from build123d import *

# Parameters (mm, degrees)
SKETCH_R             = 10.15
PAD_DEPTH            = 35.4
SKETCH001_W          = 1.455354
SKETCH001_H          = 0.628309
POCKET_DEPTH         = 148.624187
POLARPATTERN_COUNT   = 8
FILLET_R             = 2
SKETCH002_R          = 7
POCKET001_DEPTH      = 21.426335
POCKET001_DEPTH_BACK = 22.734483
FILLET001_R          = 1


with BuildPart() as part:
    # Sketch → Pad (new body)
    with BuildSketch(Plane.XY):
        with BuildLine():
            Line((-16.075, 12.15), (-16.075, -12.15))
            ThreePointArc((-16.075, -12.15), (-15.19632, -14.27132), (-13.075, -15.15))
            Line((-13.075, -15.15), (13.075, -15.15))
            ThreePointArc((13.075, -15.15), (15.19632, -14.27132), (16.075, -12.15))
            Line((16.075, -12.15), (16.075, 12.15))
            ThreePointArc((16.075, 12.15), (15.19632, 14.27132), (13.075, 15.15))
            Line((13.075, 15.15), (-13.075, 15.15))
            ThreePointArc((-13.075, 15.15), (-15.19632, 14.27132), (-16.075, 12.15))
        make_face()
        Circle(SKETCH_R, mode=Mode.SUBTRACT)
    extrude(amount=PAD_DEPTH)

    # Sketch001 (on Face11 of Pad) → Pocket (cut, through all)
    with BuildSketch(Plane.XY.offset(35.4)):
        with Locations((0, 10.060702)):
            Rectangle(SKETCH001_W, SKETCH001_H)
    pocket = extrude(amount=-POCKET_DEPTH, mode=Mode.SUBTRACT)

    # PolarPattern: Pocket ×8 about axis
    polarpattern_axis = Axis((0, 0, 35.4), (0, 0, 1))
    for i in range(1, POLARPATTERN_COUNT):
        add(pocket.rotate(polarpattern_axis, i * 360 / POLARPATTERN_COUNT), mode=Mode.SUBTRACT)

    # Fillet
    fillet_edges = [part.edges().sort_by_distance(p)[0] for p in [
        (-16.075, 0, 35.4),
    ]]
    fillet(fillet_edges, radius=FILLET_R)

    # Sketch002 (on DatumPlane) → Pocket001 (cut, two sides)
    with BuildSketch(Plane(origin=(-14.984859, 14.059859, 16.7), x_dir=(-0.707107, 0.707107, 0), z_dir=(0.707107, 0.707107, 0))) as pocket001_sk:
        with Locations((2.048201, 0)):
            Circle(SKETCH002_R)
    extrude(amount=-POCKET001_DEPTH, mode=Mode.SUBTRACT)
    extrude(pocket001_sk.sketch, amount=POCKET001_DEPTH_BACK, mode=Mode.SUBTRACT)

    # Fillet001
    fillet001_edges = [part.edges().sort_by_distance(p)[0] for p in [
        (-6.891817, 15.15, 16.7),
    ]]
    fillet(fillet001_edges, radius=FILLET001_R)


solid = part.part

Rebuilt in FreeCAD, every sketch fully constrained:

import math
import FreeCAD as App
import Part
import Sketcher
Q = App.Units.Quantity


def edges_at(feature, points):
    """Names of the edges that pass closest to the given points."""
    edges = feature.Shape.Edges
    near = lambda p: min(range(len(edges)), key=lambda i: edges[i].distToShape(Part.Vertex(*p))[0])
    return sorted({f"Edge{near(p) + 1}" for p in points})


def add_polygon(sketch, points):
    """Adds a closed chain of lines whose ends are joined by coincident constraints."""
    first, n = sketch.GeometryCount, len(points)
    for a, b in zip(points, points[1:] + points[:1]):
        sketch.addGeometry(Part.LineSegment(App.Vector(*a, 0), App.Vector(*b, 0)), False)
    for i in range(n):
        sketch.addConstraint(Sketcher.Constraint("Coincident", first + i, 2, first + (i + 1) % n, 1))

doc = App.newDocument("Part")
params = doc.addObject("Spreadsheet::Sheet", "Params")
for row, (alias, value) in enumerate([
    ("sketch1_radius", "3.000001 mm"),
    ("sketch1_diameter", "20.3 mm"),
    ("sketch1_height", "24.3 mm"),
    ("sketch1_width", "26.15 mm"),
    ("pad1_length", "35.4 mm"),
    ("fillet_radius", "2 mm"),
    ("sketch3_diameter", "14 mm"),
    ("fillet2_radius", "1 mm"),
], start=1):
    params.set(f"A{row}", alias)
    params.set(f"B{row}", "=" + value)
    params.setAlias(f"B{row}", alias)

body = doc.addObject("PartDesign::Body", "Body")

sketch1 = body.newObject("Sketcher::SketchObject", "Sketch")
sketch1.AttachmentSupport = (doc.getObject("XY_Plane"), [""])
sketch1.MapMode = "FlatFace"
sketch1.addGeometry(Part.LineSegment(App.Vector(-16.1, 12.2, 0), App.Vector(-16.1, -12.2, 0)), False)
sketch1.addGeometry(Part.ArcOfCircle(Part.Circle(App.Vector(-13.1, -12.1, 0), App.Vector(0, 0, 1), 3), math.radians(-180), math.radians(-90)), False)
sketch1.addGeometry(Part.LineSegment(App.Vector(-13.1, -15.2, 0), App.Vector(13.1, -15.2, 0)), False)
sketch1.addGeometry(Part.ArcOfCircle(Part.Circle(App.Vector(13.1, -12.1, 0), App.Vector(0, 0, 1), 3), math.radians(-90), math.radians(0)), False)
sketch1.addGeometry(Part.LineSegment(App.Vector(16.1, -12.2, 0), App.Vector(16.1, 12.2, 0)), False)
sketch1.addGeometry(Part.ArcOfCircle(Part.Circle(App.Vector(13.1, 12.1, 0), App.Vector(0, 0, 1), 3), math.radians(0), math.radians(90)), False)
sketch1.addGeometry(Part.LineSegment(App.Vector(13.1, 15.2, 0), App.Vector(-13.1, 15.2, 0)), False)
sketch1.addGeometry(Part.ArcOfCircle(Part.Circle(App.Vector(-13.1, 12.1, 0), App.Vector(0, 0, 1), 3), math.radians(90), math.radians(180)), False)
sketch1.addGeometry(Part.Circle(App.Vector(0, 0, 0), App.Vector(0, 0, 1), 10.2), False)
sketch1.addConstraint(Sketcher.Constraint("Tangent", 0, 2, 1, 1))
sketch1.addConstraint(Sketcher.Constraint("Tangent", 1, 2, 2, 1))
sketch1.addConstraint(Sketcher.Constraint("Tangent", 2, 2, 3, 1))
sketch1.addConstraint(Sketcher.Constraint("Tangent", 3, 2, 4, 1))
sketch1.addConstraint(Sketcher.Constraint("Tangent", 4, 2, 5, 1))
sketch1.addConstraint(Sketcher.Constraint("Tangent", 5, 2, 6, 1))
sketch1.addConstraint(Sketcher.Constraint("Tangent", 6, 2, 7, 1))
sketch1.addConstraint(Sketcher.Constraint("Tangent", 7, 2, 0, 1))
sketch1.addConstraint(Sketcher.Constraint("Vertical", 0))
sketch1.addConstraint(Sketcher.Constraint("Horizontal", 2))
sketch1.addConstraint(Sketcher.Constraint("Vertical", 4))
sketch1.addConstraint(Sketcher.Constraint("Horizontal", 6))
sketch1.addConstraint(Sketcher.Constraint("Coincident", 8, 3, -1, 1))
sketch1.addConstraint(Sketcher.Constraint("Equal", 1, 3))
sketch1.addConstraint(Sketcher.Constraint("Equal", 3, 5))
sketch1.addConstraint(Sketcher.Constraint("Equal", 5, 7))
sketch1.addConstraint(Sketcher.Constraint("Symmetric", 1, 3, 5, 3, -1, 1))
sketch1.addConstraint(Sketcher.Constraint("Radius", 1, Q("3.000001 mm")))
sketch1.addConstraint(Sketcher.Constraint("Diameter", 8, Q("20.3 mm")))
sketch1.addConstraint(Sketcher.Constraint("DistanceY", 0, 2, 0, 1, Q("24.3 mm")))
sketch1.addConstraint(Sketcher.Constraint("DistanceX", 2, 1, 2, 2, Q("26.15 mm")))
sketch1.setExpression("Constraints[17]", "Params.sketch1_radius")
sketch1.setExpression("Constraints[18]", "Params.sketch1_diameter")
sketch1.setExpression("Constraints[19]", "Params.sketch1_height")
sketch1.setExpression("Constraints[20]", "Params.sketch1_width")
pad1 = body.newObject("PartDesign::Pad", "Pad")
pad1.Profile = sketch1
pad1.setExpression("Length", "Params.pad1_length")

sketch2 = body.newObject("Sketcher::SketchObject", "Sketch001")
sketch2.AttachmentSupport = (doc.getObject("XY_Plane"), [""])
sketch2.MapMode = "FlatFace"
sketch2.AttachmentOffset = App.Placement(App.Vector(0, 0, 35.4), App.Rotation())
add_polygon(sketch2, [(-0.7, 10.4), (-0.7, 9.7), (0.7, 9.7), (0.7, 10.4)])
sketch2.addConstraint(Sketcher.Constraint("Vertical", 0))
sketch2.addConstraint(Sketcher.Constraint("Horizontal", 1))
sketch2.addConstraint(Sketcher.Constraint("Vertical", 2))
sketch2.addConstraint(Sketcher.Constraint("Horizontal", 3))
sketch2.addConstraint(Sketcher.Constraint("DistanceY", 0, 2, 0, 1, Q("0.628309 mm")))
sketch2.addConstraint(Sketcher.Constraint("DistanceX", 1, 1, 1, 2, Q("1.455354 mm")))
sketch2.addConstraint(Sketcher.Constraint("DistanceX", 0, 2, -1, 1, Q("0.727677 mm")))
sketch2.addConstraint(Sketcher.Constraint("DistanceY", -1, 1, 0, 2, Q("9.746548 mm")))
pocket1 = body.newObject("PartDesign::Pocket", "Pocket")
pocket1.Profile = sketch2
pocket1.Type = "ThroughAll"
doc.recompute()

polarpattern = body.newObject("PartDesign::PolarPattern", "PolarPattern")
polarpattern.Originals = [pocket1]
polarpattern.Axis = (doc.getObject("Z_Axis"), [""])
polarpattern.Angle = 360
polarpattern.Occurrences = 8
body.Tip = polarpattern
doc.recompute()

fillet = body.newObject("PartDesign::Fillet", "Fillet")
fillet.Base = (polarpattern, edges_at(polarpattern, [(-16.075, 0, 35.4)]))
fillet.setExpression("Radius", "Params.fillet_radius")

sketch3 = body.newObject("Sketcher::SketchObject", "Sketch002")
sketch3.Placement = App.Placement(App.Vector(-14.984859, 14.059859, 16.7), App.Rotation(App.Vector(-0.707106781, 0.707106781, 0), App.Vector(0, 0, 0.999999999), App.Vector(0.707106781, 0.707106781, 0), "ZXY"))
sketch3.addGeometry(Part.Circle(App.Vector(2, 0, 0), App.Vector(0, 0, 1), 7), False)
sketch3.addConstraint(Sketcher.Constraint("PointOnObject", 0, 3, -1))
sketch3.addConstraint(Sketcher.Constraint("Diameter", 0, Q("14 mm")))
sketch3.addConstraint(Sketcher.Constraint("DistanceX", -1, 1, 0, 3, Q("2.048201 mm")))
sketch3.setExpression("Constraints[1]", "Params.sketch3_diameter")
pocket2 = body.newObject("PartDesign::Pocket", "Pocket001")
pocket2.Profile = sketch3
pocket2.Type = "ThroughAll"
pocket2.Midplane = True
doc.recompute()

fillet2 = body.newObject("PartDesign::Fillet", "Fillet001")
fillet2.Base = (pocket2, edges_at(pocket2, [(-6.892, 15.15, 16.7)]))
fillet2.setExpression("Radius", "Params.fillet2_radius")

doc.recompute()
